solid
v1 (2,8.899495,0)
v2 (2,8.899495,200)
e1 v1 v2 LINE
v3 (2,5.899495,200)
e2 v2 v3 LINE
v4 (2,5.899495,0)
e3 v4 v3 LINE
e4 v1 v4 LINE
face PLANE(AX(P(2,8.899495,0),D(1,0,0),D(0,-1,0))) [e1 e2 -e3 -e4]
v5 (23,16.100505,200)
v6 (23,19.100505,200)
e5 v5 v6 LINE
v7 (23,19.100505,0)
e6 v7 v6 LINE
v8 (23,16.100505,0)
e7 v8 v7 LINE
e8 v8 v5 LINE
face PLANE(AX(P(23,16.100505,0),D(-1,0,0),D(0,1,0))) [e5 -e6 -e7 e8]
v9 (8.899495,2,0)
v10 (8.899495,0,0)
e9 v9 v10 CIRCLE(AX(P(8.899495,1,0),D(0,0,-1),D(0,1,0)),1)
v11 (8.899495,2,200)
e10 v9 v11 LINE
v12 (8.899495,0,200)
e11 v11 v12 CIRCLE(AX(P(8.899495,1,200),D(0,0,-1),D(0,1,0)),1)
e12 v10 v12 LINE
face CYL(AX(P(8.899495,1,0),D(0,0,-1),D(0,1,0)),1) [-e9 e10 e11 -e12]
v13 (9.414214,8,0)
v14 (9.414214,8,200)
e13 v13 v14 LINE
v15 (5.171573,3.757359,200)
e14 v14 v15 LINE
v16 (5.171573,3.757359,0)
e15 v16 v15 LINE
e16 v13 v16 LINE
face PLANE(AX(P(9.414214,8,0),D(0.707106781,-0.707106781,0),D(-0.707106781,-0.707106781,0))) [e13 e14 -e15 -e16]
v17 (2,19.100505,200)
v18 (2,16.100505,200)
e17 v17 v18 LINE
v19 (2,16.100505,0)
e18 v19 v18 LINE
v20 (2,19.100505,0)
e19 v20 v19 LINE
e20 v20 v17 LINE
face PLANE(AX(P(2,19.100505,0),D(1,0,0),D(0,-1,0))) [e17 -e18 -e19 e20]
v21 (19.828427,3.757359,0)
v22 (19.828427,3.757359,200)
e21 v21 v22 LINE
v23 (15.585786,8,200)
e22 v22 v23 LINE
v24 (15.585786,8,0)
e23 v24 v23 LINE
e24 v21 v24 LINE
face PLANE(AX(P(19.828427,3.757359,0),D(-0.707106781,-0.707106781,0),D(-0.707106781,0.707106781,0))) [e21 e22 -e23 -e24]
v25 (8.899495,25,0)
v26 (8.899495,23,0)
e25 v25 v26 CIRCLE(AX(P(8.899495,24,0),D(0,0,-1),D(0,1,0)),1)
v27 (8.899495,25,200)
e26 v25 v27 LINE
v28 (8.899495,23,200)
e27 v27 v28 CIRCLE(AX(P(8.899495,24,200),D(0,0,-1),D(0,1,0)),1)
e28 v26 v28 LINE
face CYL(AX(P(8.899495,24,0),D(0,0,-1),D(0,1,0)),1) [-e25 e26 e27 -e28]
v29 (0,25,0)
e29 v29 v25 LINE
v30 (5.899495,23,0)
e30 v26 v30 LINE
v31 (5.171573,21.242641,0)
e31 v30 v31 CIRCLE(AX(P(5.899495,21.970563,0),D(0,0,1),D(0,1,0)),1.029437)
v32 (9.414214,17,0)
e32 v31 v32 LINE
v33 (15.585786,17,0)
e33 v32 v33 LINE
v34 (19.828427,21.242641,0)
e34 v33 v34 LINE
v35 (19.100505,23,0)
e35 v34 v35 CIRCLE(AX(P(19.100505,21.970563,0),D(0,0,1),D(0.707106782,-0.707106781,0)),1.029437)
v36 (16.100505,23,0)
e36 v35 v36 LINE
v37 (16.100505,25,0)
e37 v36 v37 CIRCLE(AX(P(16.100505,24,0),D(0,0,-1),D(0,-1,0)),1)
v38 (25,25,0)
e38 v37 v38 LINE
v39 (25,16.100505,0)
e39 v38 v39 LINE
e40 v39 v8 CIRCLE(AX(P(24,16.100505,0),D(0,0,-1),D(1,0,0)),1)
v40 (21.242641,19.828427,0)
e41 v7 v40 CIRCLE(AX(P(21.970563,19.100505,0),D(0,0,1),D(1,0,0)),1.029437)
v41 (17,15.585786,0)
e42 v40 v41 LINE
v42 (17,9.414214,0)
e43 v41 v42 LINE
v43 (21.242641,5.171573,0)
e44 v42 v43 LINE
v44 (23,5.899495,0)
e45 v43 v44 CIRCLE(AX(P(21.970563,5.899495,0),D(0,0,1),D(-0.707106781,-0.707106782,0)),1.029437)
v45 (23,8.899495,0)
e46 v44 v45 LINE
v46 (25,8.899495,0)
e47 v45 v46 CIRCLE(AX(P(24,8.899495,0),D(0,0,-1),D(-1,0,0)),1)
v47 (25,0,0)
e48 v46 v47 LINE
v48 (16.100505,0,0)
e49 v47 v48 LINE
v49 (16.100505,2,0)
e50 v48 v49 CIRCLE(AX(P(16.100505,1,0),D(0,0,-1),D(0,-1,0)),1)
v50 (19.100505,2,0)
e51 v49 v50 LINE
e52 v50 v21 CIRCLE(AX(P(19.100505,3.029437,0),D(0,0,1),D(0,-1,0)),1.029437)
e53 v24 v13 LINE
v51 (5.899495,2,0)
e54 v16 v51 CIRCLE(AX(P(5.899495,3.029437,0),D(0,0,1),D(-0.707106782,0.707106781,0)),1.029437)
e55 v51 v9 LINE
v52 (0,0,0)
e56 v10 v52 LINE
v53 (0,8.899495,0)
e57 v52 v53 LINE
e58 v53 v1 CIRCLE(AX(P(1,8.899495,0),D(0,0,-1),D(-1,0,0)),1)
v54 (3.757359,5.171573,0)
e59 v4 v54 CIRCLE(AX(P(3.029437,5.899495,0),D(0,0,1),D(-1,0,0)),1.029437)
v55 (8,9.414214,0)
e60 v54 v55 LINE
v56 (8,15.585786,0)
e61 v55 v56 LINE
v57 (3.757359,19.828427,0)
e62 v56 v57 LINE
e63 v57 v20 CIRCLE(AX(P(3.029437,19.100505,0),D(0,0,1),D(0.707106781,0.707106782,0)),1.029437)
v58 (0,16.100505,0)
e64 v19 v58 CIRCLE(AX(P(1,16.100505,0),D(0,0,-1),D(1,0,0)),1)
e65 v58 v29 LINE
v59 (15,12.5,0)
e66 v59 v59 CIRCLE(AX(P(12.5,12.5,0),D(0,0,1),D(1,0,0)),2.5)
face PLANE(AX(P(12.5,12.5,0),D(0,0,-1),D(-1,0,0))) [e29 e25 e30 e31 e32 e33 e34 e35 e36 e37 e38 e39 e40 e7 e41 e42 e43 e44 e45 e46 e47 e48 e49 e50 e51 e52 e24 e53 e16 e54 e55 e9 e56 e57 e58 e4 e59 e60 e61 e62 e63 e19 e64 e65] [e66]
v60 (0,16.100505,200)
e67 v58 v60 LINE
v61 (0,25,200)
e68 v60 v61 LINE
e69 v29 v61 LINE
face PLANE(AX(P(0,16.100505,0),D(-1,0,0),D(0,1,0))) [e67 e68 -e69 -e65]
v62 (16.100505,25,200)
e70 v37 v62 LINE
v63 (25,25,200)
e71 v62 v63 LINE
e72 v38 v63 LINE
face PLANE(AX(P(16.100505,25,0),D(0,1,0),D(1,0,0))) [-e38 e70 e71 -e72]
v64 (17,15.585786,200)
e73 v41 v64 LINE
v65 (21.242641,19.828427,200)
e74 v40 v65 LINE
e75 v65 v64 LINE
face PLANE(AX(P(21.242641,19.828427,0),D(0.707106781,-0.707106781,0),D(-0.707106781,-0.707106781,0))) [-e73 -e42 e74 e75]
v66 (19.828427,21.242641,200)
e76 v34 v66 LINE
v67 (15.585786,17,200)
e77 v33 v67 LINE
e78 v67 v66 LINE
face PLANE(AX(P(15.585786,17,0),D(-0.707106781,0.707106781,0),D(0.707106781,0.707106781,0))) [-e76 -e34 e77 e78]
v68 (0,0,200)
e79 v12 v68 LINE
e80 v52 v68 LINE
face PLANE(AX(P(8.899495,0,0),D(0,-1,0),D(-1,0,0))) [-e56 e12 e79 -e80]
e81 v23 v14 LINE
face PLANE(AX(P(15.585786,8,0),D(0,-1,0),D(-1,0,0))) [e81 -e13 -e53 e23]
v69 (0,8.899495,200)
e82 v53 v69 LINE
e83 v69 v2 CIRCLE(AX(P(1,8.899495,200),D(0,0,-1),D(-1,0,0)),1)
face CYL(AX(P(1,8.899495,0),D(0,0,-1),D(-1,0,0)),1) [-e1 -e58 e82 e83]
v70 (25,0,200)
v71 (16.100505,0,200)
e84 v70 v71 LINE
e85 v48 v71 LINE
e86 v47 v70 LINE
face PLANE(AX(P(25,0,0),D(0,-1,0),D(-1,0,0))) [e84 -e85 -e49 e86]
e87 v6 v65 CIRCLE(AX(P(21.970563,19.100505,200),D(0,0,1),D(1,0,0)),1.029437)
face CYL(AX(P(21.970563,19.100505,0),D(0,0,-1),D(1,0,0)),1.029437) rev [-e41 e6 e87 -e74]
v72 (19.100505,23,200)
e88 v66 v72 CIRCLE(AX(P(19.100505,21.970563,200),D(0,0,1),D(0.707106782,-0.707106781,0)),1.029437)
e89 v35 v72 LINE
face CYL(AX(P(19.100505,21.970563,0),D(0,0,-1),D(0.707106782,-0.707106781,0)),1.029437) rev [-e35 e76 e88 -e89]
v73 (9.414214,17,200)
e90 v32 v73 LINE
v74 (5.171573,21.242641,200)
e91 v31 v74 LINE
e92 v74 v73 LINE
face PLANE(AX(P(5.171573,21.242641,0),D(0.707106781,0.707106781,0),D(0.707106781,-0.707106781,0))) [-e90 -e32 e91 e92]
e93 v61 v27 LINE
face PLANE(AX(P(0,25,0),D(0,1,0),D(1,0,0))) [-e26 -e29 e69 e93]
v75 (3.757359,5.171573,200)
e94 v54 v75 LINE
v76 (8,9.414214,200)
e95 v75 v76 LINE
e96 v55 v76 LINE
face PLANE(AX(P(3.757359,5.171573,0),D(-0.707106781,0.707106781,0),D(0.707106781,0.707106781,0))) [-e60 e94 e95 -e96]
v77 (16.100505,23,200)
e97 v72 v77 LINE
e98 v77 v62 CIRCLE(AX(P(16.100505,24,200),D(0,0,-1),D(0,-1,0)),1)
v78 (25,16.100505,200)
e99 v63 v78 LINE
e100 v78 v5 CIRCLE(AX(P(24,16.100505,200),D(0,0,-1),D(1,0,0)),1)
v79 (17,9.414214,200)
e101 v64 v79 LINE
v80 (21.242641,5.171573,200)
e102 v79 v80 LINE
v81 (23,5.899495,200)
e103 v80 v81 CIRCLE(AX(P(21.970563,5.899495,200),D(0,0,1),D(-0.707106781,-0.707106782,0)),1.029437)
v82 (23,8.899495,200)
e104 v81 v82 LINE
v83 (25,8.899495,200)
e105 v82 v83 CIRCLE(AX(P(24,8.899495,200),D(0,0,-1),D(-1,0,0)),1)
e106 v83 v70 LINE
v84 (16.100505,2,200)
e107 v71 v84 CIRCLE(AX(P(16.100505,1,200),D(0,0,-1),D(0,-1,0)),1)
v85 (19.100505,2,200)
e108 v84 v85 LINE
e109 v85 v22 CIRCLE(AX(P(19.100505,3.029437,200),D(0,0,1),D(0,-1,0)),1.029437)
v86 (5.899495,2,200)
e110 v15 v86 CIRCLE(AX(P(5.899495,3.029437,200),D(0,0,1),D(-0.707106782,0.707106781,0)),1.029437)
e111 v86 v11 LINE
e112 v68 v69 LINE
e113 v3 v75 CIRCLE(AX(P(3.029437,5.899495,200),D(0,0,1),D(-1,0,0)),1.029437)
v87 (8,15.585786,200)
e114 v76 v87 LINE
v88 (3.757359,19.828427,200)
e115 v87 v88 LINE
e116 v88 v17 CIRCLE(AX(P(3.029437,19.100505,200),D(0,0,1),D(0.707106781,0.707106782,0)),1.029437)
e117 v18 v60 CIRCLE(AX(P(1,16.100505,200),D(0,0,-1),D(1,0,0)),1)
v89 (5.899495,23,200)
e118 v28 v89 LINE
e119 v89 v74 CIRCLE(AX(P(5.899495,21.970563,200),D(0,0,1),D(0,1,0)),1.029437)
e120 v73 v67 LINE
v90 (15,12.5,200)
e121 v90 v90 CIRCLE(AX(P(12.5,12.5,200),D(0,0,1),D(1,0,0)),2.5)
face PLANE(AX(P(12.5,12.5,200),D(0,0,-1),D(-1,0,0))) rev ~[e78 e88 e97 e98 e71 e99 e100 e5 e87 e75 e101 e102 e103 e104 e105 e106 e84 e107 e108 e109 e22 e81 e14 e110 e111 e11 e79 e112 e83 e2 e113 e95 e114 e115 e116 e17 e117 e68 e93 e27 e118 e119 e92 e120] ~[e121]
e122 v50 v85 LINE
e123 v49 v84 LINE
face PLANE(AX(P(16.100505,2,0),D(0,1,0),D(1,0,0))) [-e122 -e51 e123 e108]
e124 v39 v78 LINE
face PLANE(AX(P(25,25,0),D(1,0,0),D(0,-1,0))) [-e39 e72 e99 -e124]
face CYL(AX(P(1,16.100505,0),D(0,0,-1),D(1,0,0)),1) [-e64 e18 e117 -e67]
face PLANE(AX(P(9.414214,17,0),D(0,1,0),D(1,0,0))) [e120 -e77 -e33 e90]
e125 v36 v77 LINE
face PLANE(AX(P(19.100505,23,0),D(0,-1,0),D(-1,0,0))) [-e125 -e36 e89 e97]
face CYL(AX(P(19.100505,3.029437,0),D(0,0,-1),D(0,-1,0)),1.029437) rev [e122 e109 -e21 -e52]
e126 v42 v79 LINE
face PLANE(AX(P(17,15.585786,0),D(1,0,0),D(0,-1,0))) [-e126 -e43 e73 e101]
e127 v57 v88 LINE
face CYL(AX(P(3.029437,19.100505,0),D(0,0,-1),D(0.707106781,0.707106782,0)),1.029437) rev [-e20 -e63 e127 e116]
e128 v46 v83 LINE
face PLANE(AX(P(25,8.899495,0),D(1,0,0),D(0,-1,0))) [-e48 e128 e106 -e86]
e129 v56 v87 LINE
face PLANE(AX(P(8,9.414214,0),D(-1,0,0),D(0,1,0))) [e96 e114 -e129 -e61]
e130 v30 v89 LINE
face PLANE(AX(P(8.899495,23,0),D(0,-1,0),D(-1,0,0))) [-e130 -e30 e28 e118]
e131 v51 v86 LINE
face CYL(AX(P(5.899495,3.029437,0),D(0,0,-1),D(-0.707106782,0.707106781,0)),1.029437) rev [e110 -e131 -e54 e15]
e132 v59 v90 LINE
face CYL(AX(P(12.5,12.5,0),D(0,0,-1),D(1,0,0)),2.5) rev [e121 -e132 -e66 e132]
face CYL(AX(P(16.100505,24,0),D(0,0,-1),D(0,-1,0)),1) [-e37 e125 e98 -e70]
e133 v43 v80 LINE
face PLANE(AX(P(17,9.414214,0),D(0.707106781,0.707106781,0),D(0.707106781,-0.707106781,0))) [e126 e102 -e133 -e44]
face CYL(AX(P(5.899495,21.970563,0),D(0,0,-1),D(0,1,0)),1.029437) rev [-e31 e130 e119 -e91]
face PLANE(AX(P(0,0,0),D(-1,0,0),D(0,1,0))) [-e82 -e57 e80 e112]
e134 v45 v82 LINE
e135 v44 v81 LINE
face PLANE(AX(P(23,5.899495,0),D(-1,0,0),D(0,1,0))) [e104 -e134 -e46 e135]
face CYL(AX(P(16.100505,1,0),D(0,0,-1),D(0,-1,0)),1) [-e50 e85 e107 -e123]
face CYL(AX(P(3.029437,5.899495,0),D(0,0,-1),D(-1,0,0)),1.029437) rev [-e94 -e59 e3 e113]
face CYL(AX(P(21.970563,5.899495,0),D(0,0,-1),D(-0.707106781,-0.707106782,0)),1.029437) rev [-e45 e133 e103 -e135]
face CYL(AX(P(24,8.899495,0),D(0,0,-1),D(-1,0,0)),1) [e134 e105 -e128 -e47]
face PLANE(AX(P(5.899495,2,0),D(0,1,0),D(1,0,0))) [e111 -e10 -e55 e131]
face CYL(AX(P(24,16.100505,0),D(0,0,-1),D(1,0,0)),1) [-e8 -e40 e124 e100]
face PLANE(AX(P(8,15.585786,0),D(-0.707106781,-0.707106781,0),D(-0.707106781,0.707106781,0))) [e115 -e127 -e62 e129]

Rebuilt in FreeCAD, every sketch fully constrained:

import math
import FreeCAD as App
import Part
import Sketcher

doc = App.newDocument("Part")
params = doc.addObject("Spreadsheet::Sheet", "Params")
for row, (alias, value) in enumerate([
    ("sketch1_diameter", "5 mm"),
    ("sketch1_radius", "1 mm"),
    ("sketch1_width", "3 mm"),
    ("sketch1_length", "6 mm"),
    ("pad1_length", "200 mm"),
], start=1):
    params.set(f"A{row}", alias)
    params.set(f"B{row}", "=" + value)
    params.setAlias(f"B{row}", alias)

body = doc.addObject("PartDesign::Body", "Body")

sketch1 = body.newObject("Sketcher::SketchObject", "Sketch")
sketch1.AttachmentSupport = (doc.getObject("XY_Plane"), [""])
sketch1.MapMode = "FlatFace"
sketch1.addGeometry([
    Part.ArcOfCircle(Part.Circle(App.Vector(16.1, 1, 0), App.Vector(0, 0, 1), 1), math.radians(90), math.radians(270)),
    Part.LineSegment(App.Vector(16.1, 0, 0), App.Vector(25, 0, 0)),
    Part.LineSegment(App.Vector(25, 0, 0), App.Vector(25, 8.9, 0)),
    Part.ArcOfCircle(Part.Circle(App.Vector(24, 8.9, 0), App.Vector(0, 0, 1), 1), math.radians(0), math.radians(180)),
    Part.LineSegment(App.Vector(23, 8.9, 0), App.Vector(23, 5.9, 0)),
    Part.ArcOfCircle(Part.Circle(App.Vector(22, 5.9, 0), App.Vector(0, 0, 1), 1), math.radians(-135), math.radians(0)),
    Part.LineSegment(App.Vector(21.2, 5.2, 0), App.Vector(17, 9.4, 0)),
    Part.LineSegment(App.Vector(17, 9.4, 0), App.Vector(17, 15.6, 0)),
    Part.LineSegment(App.Vector(17, 15.6, 0), App.Vector(21.2, 19.8, 0)),
    Part.ArcOfCircle(Part.Circle(App.Vector(22, 19.1, 0), App.Vector(0, 0, 1), 1), math.radians(0), math.radians(135)),
    Part.LineSegment(App.Vector(23, 19.1, 0), App.Vector(23, 16.1, 0)),
    Part.ArcOfCircle(Part.Circle(App.Vector(24, 16.1, 0), App.Vector(0, 0, 1), 1), math.radians(180), math.radians(360)),
    Part.LineSegment(App.Vector(25, 16.1, 0), App.Vector(25, 25, 0)),
    Part.LineSegment(App.Vector(25, 25, 0), App.Vector(16.1, 25, 0)),
    Part.ArcOfCircle(Part.Circle(App.Vector(16.1, 24, 0), App.Vector(0, 0, 1), 1), math.radians(90), math.radians(270)),
    Part.LineSegment(App.Vector(16.1, 23, 0), App.Vector(19.1, 23, 0)),
    Part.ArcOfCircle(Part.Circle(App.Vector(19.1, 22, 0), App.Vector(0, 0, 1), 1), math.radians(-45), math.radians(90)),
    Part.LineSegment(App.Vector(19.8, 21.2, 0), App.Vector(15.6, 17, 0)),
    Part.LineSegment(App.Vector(15.6, 17, 0), App.Vector(9.4, 17, 0)),
    Part.LineSegment(App.Vector(9.4, 17, 0), App.Vector(5.2, 21.2, 0)),
    Part.ArcOfCircle(Part.Circle(App.Vector(5.9, 22, 0), App.Vector(0, 0, 1), 1), math.radians(90), math.radians(225)),
    Part.LineSegment(App.Vector(5.9, 23, 0), App.Vector(8.9, 23, 0)),
    Part.ArcOfCircle(Part.Circle(App.Vector(8.9, 24, 0), App.Vector(0, 0, 1), 1), math.radians(-90), math.radians(90)),
    Part.LineSegment(App.Vector(8.9, 25, 0), App.Vector(0, 25, 0)),
    Part.LineSegment(App.Vector(0, 25, 0), App.Vector(0, 16.1, 0)),
    Part.ArcOfCircle(Part.Circle(App.Vector(1, 16.1, 0), App.Vector(0, 0, 1), 1), math.radians(180), math.radians(360)),
    Part.LineSegment(App.Vector(2, 16.1, 0), App.Vector(2, 19.1, 0)),
    Part.ArcOfCircle(Part.Circle(App.Vector(3, 19.1, 0), App.Vector(0, 0, 1), 1), math.radians(45), math.radians(180)),
    Part.LineSegment(App.Vector(3.8, 19.8, 0), App.Vector(8, 15.6, 0)),
    Part.LineSegment(App.Vector(8, 15.6, 0), App.Vector(8, 9.4, 0)),
    Part.LineSegment(App.Vector(8, 9.4, 0), App.Vector(3.8, 5.2, 0)),
    Part.ArcOfCircle(Part.Circle(App.Vector(3, 5.9, 0), App.Vector(0, 0, 1), 1), math.radians(180), math.radians(315)),
    Part.LineSegment(App.Vector(2, 5.9, 0), App.Vector(2, 8.9, 0)),
    Part.ArcOfCircle(Part.Circle(App.Vector(1, 8.9, 0), App.Vector(0, 0, 1), 1), math.radians(0), math.radians(180)),
    Part.LineSegment(App.Vector(0, 8.9, 0), App.Vector(0, 0, 0)),
    Part.LineSegment(App.Vector(0, 0, 0), App.Vector(8.9, 0, 0)),
    Part.ArcOfCircle(Part.Circle(App.Vector(8.9, 1, 0), App.Vector(0, 0, 1), 1), math.radians(-90), math.radians(90)),
    Part.LineSegment(App.Vector(8.9, 2, 0), App.Vector(5.9, 2, 0)),
    Part.ArcOfCircle(Part.Circle(App.Vector(5.9, 3, 0), App.Vector(0, 0, 1), 1), math.radians(135), math.radians(270)),
    Part.LineSegment(App.Vector(5.2, 3.8, 0), App.Vector(9.4, 8, 0)),
    Part.LineSegment(App.Vector(9.4, 8, 0), App.Vector(15.6, 8, 0)),
    Part.LineSegment(App.Vector(15.6, 8, 0), App.Vector(19.8, 3.8, 0)),
    Part.ArcOfCircle(Part.Circle(App.Vector(19.1, 3, 0), App.Vector(0, 0, 1), 1), math.radians(-90), math.radians(45)),
    Part.LineSegment(App.Vector(19.1, 2, 0), App.Vector(16.1, 2, 0)),
    Part.Circle(App.Vector(12.5, 12.5, 0), App.Vector(0, 0, 1), 2.5),
], False)
sketch1.addConstraint([
    Sketcher.Constraint("Tangent", 0, 2, 1, 1),
    Sketcher.Constraint("Coincident", 1, 2, 2, 1),
    Sketcher.Constraint("Tangent", 2, 2, 3, 1),
    Sketcher.Constraint("Tangent", 3, 2, 4, 1),
    Sketcher.Constraint("Tangent", 4, 2, 5, 2),
    Sketcher.Constraint("Tangent", 5, 1, 6, 1),
    Sketcher.Constraint("Coincident", 6, 2, 7, 1),
    Sketcher.Constraint("Coincident", 7, 2, 8, 1),
    Sketcher.Constraint("Tangent", 8, 2, 9, 2),
    Sketcher.Constraint("Tangent", 9, 1, 10, 1),
    Sketcher.Constraint("Tangent", 10, 2, 11, 1),
    Sketcher.Constraint("Tangent", 11, 2, 12, 1),
    Sketcher.Constraint("Coincident", 12, 2, 13, 1),
    Sketcher.Constraint("Tangent", 13, 2, 14, 1),
    Sketcher.Constraint("Tangent", 14, 2, 15, 1),
    Sketcher.Constraint("Tangent", 15, 2, 16, 2),
    Sketcher.Constraint("Tangent", 16, 1, 17, 1),
    Sketcher.Constraint("Coincident", 17, 2, 18, 1),
    Sketcher.Constraint("Coincident", 18, 2, 19, 1),
    Sketcher.Constraint("Tangent", 19, 2, 20, 2),
    Sketcher.Constraint("Tangent", 20, 1, 21, 1),
    Sketcher.Constraint("Tangent", 21, 2, 22, 1),
    Sketcher.Constraint("Tangent", 22, 2, 23, 1),
    Sketcher.Constraint("Coincident", 23, 2, 24, 1),
    Sketcher.Constraint("Tangent", 24, 2, 25, 1),
    Sketcher.Constraint("Tangent", 25, 2, 26, 1),
    Sketcher.Constraint("Tangent", 26, 2, 27, 2),
    Sketcher.Constraint("Tangent", 27, 1, 28, 1),
    Sketcher.Constraint("Coincident", 28, 2, 29, 1),
    Sketcher.Constraint("Coincident", 29, 2, 30, 1),
    Sketcher.Constraint("Tangent", 30, 2, 31, 2),
    Sketcher.Constraint("Tangent", 31, 1, 32, 1),
    Sketcher.Constraint("Tangent", 32, 2, 33, 1),
    Sketcher.Constraint("Tangent", 33, 2, 34, 1),
    Sketcher.Constraint("Coincident", 34, 2, 35, 1),
    Sketcher.Constraint("Tangent", 35, 2, 36, 1),
    Sketcher.Constraint("Tangent", 36, 2, 37, 1),
    Sketcher.Constraint("Tangent", 37, 2, 38, 2),
    Sketcher.Constraint("Tangent", 38, 1, 39, 1),
    Sketcher.Constraint("Coincident", 39, 2, 40, 1),
    Sketcher.Constraint("Coincident", 40, 2, 41, 1),
    Sketcher.Constraint("Tangent", 41, 2, 42, 2),
    Sketcher.Constraint("Tangent", 42, 1, 43, 1),
    Sketcher.Constraint("Tangent", 43, 2, 0, 1),
    Sketcher.Constraint("Horizontal", 1),
    Sketcher.Constraint("Vertical", 2),
    Sketcher.Constraint("Vertical", 4),
    Sketcher.Constraint("Vertical", 7),
    Sketcher.Constraint("Vertical", 10),
    Sketcher.Constraint("Vertical", 12),
    Sketcher.Constraint("Horizontal", 13),
    Sketcher.Constraint("Horizontal", 15),
    Sketcher.Constraint("Horizontal", 18),
    Sketcher.Constraint("Horizontal", 21),
    Sketcher.Constraint("Horizontal", 23),
    Sketcher.Constraint("Vertical", 24),
    Sketcher.Constraint("Vertical", 26),
    Sketcher.Constraint("Vertical", 29),
    Sketcher.Constraint("Vertical", 32),
    Sketcher.Constraint("Vertical", 34),
    Sketcher.Constraint("Horizontal", 35),
    Sketcher.Constraint("Horizontal", 37),
    Sketcher.Constraint("Horizontal", 40),
    Sketcher.Constraint("Horizontal", 43),
    Sketcher.Constraint("Coincident", 34, 2, -1, 1),
    Sketcher.Constraint("Equal", 0, 3),
    Sketcher.Constraint("Equal", 5, 9),
    Sketcher.Constraint("Equal", 3, 11),
    Sketcher.Constraint("Equal", 11, 14),
    Sketcher.Constraint("Equal", 9, 16),
    Sketcher.Constraint("Equal", 16, 20),
    Sketcher.Constraint("Equal", 14, 22),
    Sketcher.Constraint("Equal", 22, 25),
    Sketcher.Constraint("Equal", 20, 27),
    Sketcher.Constraint("Equal", 27, 31),
    Sketcher.Constraint("Equal", 25, 33),
    Sketcher.Constraint("Equal", 33, 36),
    Sketcher.Constraint("Equal", 31, 38),
    Sketcher.Constraint("Equal", 38, 42),
    Sketcher.Constraint("PointOnObject", 0, 2, -1),
    Sketcher.Constraint("PointOnObject", 23, 2, -2),
    Sketcher.Constraint("Perpendicular", 6, 8),
    Sketcher.Constraint("Parallel", 8, 17),
    Sketcher.Constraint("Perpendicular", 17, 19),
    Sketcher.Constraint("Parallel", 19, 28),
    Sketcher.Constraint("Perpendicular", 28, 30),
    Sketcher.Constraint("Parallel", 30, 39),
    Sketcher.Constraint("Perpendicular", 39, 41),
    Sketcher.Constraint("Horizontal", 16, 3, 20, 3),
    Sketcher.Constraint("Horizontal", 11, 3, 25, 3),
    Sketcher.Constraint("Horizontal", 9, 3, 27, 3),
    Sketcher.Constraint("Horizontal", 5, 3, 31, 3),
    Sketcher.Constraint("Horizontal", 3, 3, 33, 3),
    Sketcher.Constraint("Horizontal", 16, 1, 19, 2),
    Sketcher.Constraint("Horizontal", 7, 2, 28, 2),
    Sketcher.Constraint("Horizontal", 6, 2, 29, 2),
    Sketcher.Constraint("Vertical", 0, 3, 14, 3),
    Sketcher.Constraint("Vertical", 22, 3, 36, 3),
    Sketcher.Constraint("Vertical", 20, 3, 38, 3),
    Sketcher.Constraint("Vertical", 16, 3, 42, 3),
    Sketcher.Constraint("Vertical", 18, 2, 39, 2),
    Sketcher.Constraint("Equal", 15, 21),
    Sketcher.Constraint("Equal", 13, 23),
    Sketcher.Constraint("Equal", 35, 2),
    Sketcher.Constraint("Equal", 43, 4),
    Sketcher.Constraint("Equal", 40, 7),
    Sketcher.Constraint("Equal", 4, 10),
    Sketcher.Constraint("Equal", 2, 12),
    Sketcher.Constraint("Equal", 8, 17),
    Sketcher.Constraint("Diameter", 44, 5.0),
    Sketcher.Constraint("Radius", 0, 1.0),
    Sketcher.Constraint("DistanceX", 15, 1, 15, 2, 3.0),
    Sketcher.Constraint("Distance", 6, 6.0),
    Sketcher.Constraint("DistanceX", -1, 1, 3, 3, 24.0),
    Sketcher.Constraint("DistanceX", -1, 1, 6, 2, 17.0),
    Sketcher.Constraint("DistanceX", -1, 1, 44, 3, 12.5),
    Sketcher.Constraint("DistanceY", -1, 1, 44, 3, 12.5),
    Sketcher.Constraint("DistanceX", 1, 1, 1, 2, 8.899495),
])
sketch1.setExpression("Constraints[109]", "Params.sketch1_diameter")
sketch1.setExpression("Constraints[110]", "Params.sketch1_radius")
sketch1.setExpression("Constraints[111]", "Params.sketch1_width")
sketch1.setExpression("Constraints[112]", "Params.sketch1_length")
pad1 = body.newObject("PartDesign::Pad", "Pad")
pad1.Profile = sketch1
pad1.setExpression("Length", "Params.pad1_length")

doc.recompute()
